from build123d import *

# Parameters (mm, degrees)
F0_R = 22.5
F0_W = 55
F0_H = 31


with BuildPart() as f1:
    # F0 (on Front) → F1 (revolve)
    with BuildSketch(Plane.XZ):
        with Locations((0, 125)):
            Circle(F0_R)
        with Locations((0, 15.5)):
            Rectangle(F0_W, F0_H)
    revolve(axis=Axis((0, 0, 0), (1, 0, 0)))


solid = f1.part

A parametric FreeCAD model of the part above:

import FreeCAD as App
import Part
import Sketcher

doc = App.newDocument("Part")
params = doc.addObject("Spreadsheet::Sheet", "Params")
for row, (alias, value) in enumerate([
    ("sketch1_diameter", "45 mm"),
    ("sketch1_width", "55 mm"),
    ("sketch1_height", "31 mm"),
    ("revolution_angle", "360 deg"),
], start=1):
    params.set(f"A{row}", alias)
    params.set(f"B{row}", "=" + value)
    params.setAlias(f"B{row}", alias)

body = doc.addObject("PartDesign::Body", "Body")
body.AllowCompound = True

sketch1 = body.newObject("Sketcher::SketchObject", "Sketch")
sketch1.AttachmentSupport = (doc.getObject("XZ_Plane"), [""])
sketch1.MapMode = "FlatFace"
sketch1.addGeometry([
    Part.Circle(App.Vector(0, 125, 0), App.Vector(0, 0, 1), 22),
    Part.LineSegment(App.Vector(-28, 31, 0), App.Vector(-28, 0, 0)),
    Part.LineSegment(App.Vector(-28, 0, 0), App.Vector(28, 0, 0)),
    Part.LineSegment(App.Vector(28, 0, 0), App.Vector(28, 31, 0)),
    Part.LineSegment(App.Vector(28, 31, 0), App.Vector(-28, 31, 0)),
], False)
sketch1.addConstraint([
    Sketcher.Constraint("Coincident", 1, 2, 2, 1),
    Sketcher.Constraint("Coincident", 2, 2, 3, 1),
    Sketcher.Constraint("Coincident", 3, 2, 4, 1),
    Sketcher.Constraint("Coincident", 4, 2, 1, 1),
    Sketcher.Constraint("Vertical", 1),
    Sketcher.Constraint("Horizontal", 2),
    Sketcher.Constraint("Vertical", 3),
    Sketcher.Constraint("Horizontal", 4),
    Sketcher.Constraint("Symmetric", 1, 2, 2, 2, -1, 1),
    Sketcher.Constraint("PointOnObject", 0, 3, -2),
    Sketcher.Constraint("Diameter", 0, 45.0),
    Sketcher.Constraint("DistanceX", 2, 1, 2, 2, 55.0),
    Sketcher.Constraint("DistanceY", 1, 2, 1, 1, 31.0),
    Sketcher.Constraint("DistanceY", -1, 1, 0, 3, 125.0),
])
sketch1.setExpression("Constraints[10]", "Params.sketch1_diameter")
sketch1.setExpression("Constraints[11]", "Params.sketch1_width")
sketch1.setExpression("Constraints[12]", "Params.sketch1_height")
revolution = body.newObject("PartDesign::Revolution", "Revolution")
revolution.Profile = sketch1
revolution.ReferenceAxis = (sketch1, ["H_Axis"])
revolution.setExpression("Angle", "Params.revolution_angle")

doc.recompute()
